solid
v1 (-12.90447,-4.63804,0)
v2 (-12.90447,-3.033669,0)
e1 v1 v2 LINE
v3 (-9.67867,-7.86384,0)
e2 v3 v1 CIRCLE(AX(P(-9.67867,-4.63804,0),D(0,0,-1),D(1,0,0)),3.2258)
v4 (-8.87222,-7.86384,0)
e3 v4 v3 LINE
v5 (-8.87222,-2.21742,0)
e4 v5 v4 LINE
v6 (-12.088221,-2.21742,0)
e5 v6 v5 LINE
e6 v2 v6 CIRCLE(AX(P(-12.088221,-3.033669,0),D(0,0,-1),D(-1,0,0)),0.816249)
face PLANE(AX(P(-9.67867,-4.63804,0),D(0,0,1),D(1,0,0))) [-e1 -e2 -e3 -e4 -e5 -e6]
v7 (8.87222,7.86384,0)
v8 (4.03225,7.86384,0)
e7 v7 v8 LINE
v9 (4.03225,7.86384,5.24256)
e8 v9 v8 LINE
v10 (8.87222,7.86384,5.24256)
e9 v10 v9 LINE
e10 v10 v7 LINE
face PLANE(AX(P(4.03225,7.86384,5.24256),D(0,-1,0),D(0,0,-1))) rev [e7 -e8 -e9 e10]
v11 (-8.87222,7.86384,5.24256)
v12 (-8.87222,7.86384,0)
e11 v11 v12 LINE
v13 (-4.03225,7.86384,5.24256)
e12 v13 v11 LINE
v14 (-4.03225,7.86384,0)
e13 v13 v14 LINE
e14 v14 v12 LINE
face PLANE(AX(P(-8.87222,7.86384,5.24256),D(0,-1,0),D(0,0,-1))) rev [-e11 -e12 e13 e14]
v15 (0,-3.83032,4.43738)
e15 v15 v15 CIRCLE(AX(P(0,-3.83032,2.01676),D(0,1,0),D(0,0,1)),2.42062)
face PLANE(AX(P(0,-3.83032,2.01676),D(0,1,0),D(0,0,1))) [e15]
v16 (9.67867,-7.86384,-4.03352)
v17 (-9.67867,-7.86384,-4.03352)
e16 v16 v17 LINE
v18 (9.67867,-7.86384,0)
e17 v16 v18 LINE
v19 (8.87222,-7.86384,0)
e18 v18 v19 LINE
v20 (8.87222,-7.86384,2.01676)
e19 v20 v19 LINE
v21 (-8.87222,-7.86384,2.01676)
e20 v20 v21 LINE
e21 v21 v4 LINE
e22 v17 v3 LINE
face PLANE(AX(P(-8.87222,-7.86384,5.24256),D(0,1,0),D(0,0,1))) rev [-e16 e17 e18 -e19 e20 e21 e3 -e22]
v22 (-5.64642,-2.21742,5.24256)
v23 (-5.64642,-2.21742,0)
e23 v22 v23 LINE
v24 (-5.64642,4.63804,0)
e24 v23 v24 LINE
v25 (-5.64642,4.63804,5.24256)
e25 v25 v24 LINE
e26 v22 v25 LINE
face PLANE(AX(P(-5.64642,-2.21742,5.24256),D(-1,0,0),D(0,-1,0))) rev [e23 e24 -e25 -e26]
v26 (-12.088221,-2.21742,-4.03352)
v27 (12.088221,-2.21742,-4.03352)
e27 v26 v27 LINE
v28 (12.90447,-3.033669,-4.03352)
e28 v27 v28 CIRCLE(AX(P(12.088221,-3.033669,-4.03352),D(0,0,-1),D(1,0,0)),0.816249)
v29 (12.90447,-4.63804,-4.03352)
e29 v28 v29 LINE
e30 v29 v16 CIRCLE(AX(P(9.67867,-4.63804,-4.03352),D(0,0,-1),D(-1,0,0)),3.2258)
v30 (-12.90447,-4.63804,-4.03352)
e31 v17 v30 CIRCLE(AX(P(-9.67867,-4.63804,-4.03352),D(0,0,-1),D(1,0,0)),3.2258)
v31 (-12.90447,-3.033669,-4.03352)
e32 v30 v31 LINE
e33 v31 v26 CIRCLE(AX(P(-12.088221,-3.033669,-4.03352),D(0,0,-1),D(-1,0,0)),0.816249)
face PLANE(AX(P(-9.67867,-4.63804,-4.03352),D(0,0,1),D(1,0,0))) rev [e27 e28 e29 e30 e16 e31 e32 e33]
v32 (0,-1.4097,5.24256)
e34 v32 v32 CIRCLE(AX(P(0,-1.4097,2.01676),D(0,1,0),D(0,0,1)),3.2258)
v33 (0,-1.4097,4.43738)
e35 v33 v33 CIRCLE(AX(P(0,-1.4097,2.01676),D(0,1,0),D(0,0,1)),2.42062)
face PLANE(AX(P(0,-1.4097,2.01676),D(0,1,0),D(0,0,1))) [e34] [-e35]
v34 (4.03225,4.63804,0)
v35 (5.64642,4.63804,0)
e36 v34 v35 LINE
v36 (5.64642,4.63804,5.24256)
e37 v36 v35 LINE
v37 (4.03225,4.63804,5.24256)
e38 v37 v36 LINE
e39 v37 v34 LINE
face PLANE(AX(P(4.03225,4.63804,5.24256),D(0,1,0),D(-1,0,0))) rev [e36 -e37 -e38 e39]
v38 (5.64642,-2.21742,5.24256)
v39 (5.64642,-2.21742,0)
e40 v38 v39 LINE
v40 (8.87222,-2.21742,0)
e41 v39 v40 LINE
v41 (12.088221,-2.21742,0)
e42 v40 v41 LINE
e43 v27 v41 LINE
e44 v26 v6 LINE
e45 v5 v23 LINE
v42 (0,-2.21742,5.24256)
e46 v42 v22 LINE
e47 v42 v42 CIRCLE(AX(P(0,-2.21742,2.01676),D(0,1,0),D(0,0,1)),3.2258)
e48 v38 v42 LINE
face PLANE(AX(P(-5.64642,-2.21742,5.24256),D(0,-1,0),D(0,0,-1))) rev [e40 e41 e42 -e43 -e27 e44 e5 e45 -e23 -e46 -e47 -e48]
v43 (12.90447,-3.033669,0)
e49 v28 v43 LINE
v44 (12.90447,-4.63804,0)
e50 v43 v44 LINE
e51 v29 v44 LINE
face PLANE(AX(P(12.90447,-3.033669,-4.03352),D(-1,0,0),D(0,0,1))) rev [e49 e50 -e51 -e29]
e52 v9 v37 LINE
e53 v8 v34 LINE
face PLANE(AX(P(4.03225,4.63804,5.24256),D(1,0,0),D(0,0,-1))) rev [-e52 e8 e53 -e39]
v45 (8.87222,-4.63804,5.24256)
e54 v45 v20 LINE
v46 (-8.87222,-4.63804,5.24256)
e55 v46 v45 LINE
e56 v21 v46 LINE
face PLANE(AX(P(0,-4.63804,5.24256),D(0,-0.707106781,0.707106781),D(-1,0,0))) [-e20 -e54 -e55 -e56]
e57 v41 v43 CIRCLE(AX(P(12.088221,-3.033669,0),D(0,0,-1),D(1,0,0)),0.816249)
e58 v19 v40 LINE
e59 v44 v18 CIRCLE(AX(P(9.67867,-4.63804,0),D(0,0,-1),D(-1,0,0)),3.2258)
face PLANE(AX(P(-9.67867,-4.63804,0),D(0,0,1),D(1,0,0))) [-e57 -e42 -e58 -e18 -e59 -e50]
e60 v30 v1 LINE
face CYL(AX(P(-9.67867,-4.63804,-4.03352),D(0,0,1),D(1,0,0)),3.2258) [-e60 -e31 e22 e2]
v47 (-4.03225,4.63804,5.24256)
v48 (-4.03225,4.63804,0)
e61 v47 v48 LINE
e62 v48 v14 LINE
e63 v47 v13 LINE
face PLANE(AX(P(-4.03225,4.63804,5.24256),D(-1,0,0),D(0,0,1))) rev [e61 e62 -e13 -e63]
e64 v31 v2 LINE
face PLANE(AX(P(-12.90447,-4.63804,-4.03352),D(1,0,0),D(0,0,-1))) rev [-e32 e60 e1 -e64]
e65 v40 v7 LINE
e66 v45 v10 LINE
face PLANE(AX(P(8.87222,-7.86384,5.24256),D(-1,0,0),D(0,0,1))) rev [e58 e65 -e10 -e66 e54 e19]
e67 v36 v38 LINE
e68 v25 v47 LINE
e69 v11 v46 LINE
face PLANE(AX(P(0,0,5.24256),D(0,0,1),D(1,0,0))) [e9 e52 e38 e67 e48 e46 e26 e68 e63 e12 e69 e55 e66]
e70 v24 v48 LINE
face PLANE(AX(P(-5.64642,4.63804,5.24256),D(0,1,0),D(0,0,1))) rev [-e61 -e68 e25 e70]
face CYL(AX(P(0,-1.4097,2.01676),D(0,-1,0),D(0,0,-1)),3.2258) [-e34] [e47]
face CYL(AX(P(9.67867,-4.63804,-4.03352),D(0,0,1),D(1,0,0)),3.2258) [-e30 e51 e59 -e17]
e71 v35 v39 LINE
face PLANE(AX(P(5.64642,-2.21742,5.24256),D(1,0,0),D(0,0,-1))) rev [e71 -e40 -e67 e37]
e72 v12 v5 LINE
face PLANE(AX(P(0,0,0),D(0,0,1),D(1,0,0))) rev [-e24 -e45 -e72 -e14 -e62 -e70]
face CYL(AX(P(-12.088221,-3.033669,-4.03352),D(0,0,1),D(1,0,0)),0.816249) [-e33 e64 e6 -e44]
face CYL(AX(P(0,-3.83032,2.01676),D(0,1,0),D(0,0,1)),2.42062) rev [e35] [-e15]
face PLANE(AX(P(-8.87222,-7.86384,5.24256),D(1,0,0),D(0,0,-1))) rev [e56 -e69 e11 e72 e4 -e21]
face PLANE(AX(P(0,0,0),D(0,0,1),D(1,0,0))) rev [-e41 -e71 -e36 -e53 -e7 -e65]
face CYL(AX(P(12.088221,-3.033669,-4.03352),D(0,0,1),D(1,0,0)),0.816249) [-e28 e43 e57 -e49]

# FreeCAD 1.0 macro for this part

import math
import FreeCAD as App
import Part
import Sketcher
from FreeCAD import Vector
Q = App.Units.Quantity


def edges_at(feature, points):
    """Names of the edges that pass closest to the given points."""
    edges = feature.Shape.Edges
    near = lambda p: min(range(len(edges)), key=lambda i: edges[i].distToShape(Part.Vertex(*p))[0])
    return sorted({f"Edge{near(p) + 1}" for p in points})

doc = App.newDocument("Part")
body = doc.addObject("PartDesign::Body", "Body")

# Sketch on XY plane
sketch1 = doc.addObject("Sketcher::SketchObject", "Sketch")
body.addObject(sketch1)
sketch1.AttachmentSupport = (doc.XY_Plane, [""])
sketch1.MapMode = "FlatFace"
sketch1.addGeometry(Part.LineSegment(Vector(-8.87222, -7.86384, 0), Vector(8.87222, -7.86384, 0)), False)
sketch1.addGeometry(Part.LineSegment(Vector(8.87222, -7.86384, 0), Vector(8.87222, 7.86384, 0)), False)
sketch1.addGeometry(Part.LineSegment(Vector(8.87222, 7.86384, 0), Vector(4.03225, 7.86384, 0)), False)
sketch1.addGeometry(Part.LineSegment(Vector(4.03225, 7.86384, 0), Vector(4.03225, 4.63804, 0)), False)
sketch1.addGeometry(Part.LineSegment(Vector(4.03225, 4.63804, 0), Vector(5.64642, 4.63804, 0)), False)
sketch1.addGeometry(Part.LineSegment(Vector(5.64642, 4.63804, 0), Vector(5.64642, -2.21742, 0)), False)
sketch1.addGeometry(Part.LineSegment(Vector(5.64642, -2.21742, 0), Vector(-5.64642, -2.21742, 0)), False)
sketch1.addGeometry(Part.LineSegment(Vector(-5.64642, -2.21742, 0), Vector(-5.64642, 4.63804, 0)), False)
sketch1.addGeometry(Part.LineSegment(Vector(-5.64642, 4.63804, 0), Vector(-4.03225, 4.63804, 0)), False)
sketch1.addGeometry(Part.LineSegment(Vector(-4.03225, 4.63804, 0), Vector(-4.03225, 7.86384, 0)), False)
sketch1.addGeometry(Part.LineSegment(Vector(-4.03225, 7.86384, 0), Vector(-8.87222, 7.86384, 0)), False)
sketch1.addGeometry(Part.LineSegment(Vector(-8.87222, 7.86384, 0), Vector(-8.87222, -7.86384, 0)), False)
sketch1.addConstraint(Sketcher.Constraint("Coincident", 0, 2, 1, 1))
sketch1.addConstraint(Sketcher.Constraint("Coincident", 1, 2, 2, 1))
sketch1.addConstraint(Sketcher.Constraint("Coincident", 2, 2, 3, 1))
sketch1.addConstraint(Sketcher.Constraint("Coincident", 3, 2, 4, 1))
sketch1.addConstraint(Sketcher.Constraint("Coincident", 4, 2, 5, 1))
sketch1.addConstraint(Sketcher.Constraint("Coincident", 5, 2, 6, 1))
sketch1.addConstraint(Sketcher.Constraint("Coincident", 6, 2, 7, 1))
sketch1.addConstraint(Sketcher.Constraint("Coincident", 7, 2, 8, 1))
sketch1.addConstraint(Sketcher.Constraint("Coincident", 8, 2, 9, 1))
sketch1.addConstraint(Sketcher.Constraint("Coincident", 9, 2, 10, 1))
sketch1.addConstraint(Sketcher.Constraint("Coincident", 10, 2, 11, 1))
sketch1.addConstraint(Sketcher.Constraint("Coincident", 11, 2, 0, 1))
sketch1.addConstraint(Sketcher.Constraint("Horizontal", 0))
sketch1.addConstraint(Sketcher.Constraint("Vertical", 1))
sketch1.addConstraint(Sketcher.Constraint("Horizontal", 2))
sketch1.addConstraint(Sketcher.Constraint("Vertical", 3))
sketch1.addConstraint(Sketcher.Constraint("Horizontal", 4))
sketch1.addConstraint(Sketcher.Constraint("Vertical", 5))
sketch1.addConstraint(Sketcher.Constraint("Horizontal", 6))
sketch1.addConstraint(Sketcher.Constraint("Vertical", 7))
sketch1.addConstraint(Sketcher.Constraint("Horizontal", 8))
sketch1.addConstraint(Sketcher.Constraint("Vertical", 9))
sketch1.addConstraint(Sketcher.Constraint("Horizontal", 10))
sketch1.addConstraint(Sketcher.Constraint("Vertical", 11))
sketch1.addConstraint(Sketcher.Constraint("Symmetric", 0, 2, 10, 2, -1, 1))
sketch1.addConstraint(Sketcher.Constraint("Symmetric", 4, 2, 7, 2, -2))
sketch1.addConstraint(Sketcher.Constraint("Symmetric", 2, 2, 9, 2, -2))
sketch1.addConstraint(Sketcher.Constraint("DistanceY", 3, 2, 3, 1, Q("0.127 in")))
sketch1.addConstraint(Sketcher.Constraint("DistanceX", 0, 1, 0, 2, Q("0.6986 in")))
sketch1.addConstraint(Sketcher.Constraint("DistanceX", 6, 2, 6, 1, Q("0.4446 in")))
sketch1.addConstraint(Sketcher.Constraint("DistanceY", 1, 1, 1, 2, Q("0.6192 in")))
sketch1.addConstraint(Sketcher.Constraint("DistanceY", 5, 2, 5, 1, Q("0.2699 in")))
sketch1.addConstraint(Sketcher.Constraint("DistanceX", 8, 2, 3, 2, Q("0.3175 in")))
pad1 = doc.addObject("PartDesign::Pad", "Pad")
body.addObject(pad1)
pad1.Profile = sketch1
pad1.Length = Q("0.2064 in")

# Sketch on XY plane
sketch2 = doc.addObject("Sketcher::SketchObject", "Sketch001")
body.addObject(sketch2)
sketch2.AttachmentSupport = (doc.XY_Plane, [""])
sketch2.MapMode = "FlatFace"
sketch2.addGeometry(Part.LineSegment(Vector(-12.088221, -2.21742, 0), Vector(12.088221, -2.21742, 0)), False)
sketch2.addGeometry(Part.ArcOfCircle(Part.Circle(Vector(12.088221, -3.033669, 0), Vector(0, 0, 1), 0.816249), math.radians(0), math.radians(90)), False)
sketch2.addGeometry(Part.LineSegment(Vector(12.90447, -3.033669, 0), Vector(12.90447, -4.63804, 0)), False)
sketch2.addGeometry(Part.ArcOfCircle(Part.Circle(Vector(9.67867, -4.63804, 0), Vector(0, 0, 1), 3.2258), math.radians(-90), math.radians(0)), False)
sketch2.addGeometry(Part.LineSegment(Vector(9.67867, -7.86384, 0), Vector(-9.67867, -7.86384, 0)), False)
sketch2.addGeometry(Part.ArcOfCircle(Part.Circle(Vector(-9.67867, -4.63804, 0), Vector(0, 0, 1), 3.2258), math.radians(180), math.radians(270)), False)
sketch2.addGeometry(Part.LineSegment(Vector(-12.90447, -4.63804, 0), Vector(-12.90447, -3.033669, 0)), False)
sketch2.addGeometry(Part.ArcOfCircle(Part.Circle(Vector(-12.088221, -3.033669, 0), Vector(0, 0, 1), 0.816249), math.radians(90), math.radians(180)), False)
sketch2.addConstraint(Sketcher.Constraint("Tangent", 0, 2, 1, 2))
sketch2.addConstraint(Sketcher.Constraint("Tangent", 1, 1, 2, 1))
sketch2.addConstraint(Sketcher.Constraint("Tangent", 2, 2, 3, 2))
sketch2.addConstraint(Sketcher.Constraint("Tangent", 3, 1, 4, 1))
sketch2.addConstraint(Sketcher.Constraint("Tangent", 4, 2, 5, 2))
sketch2.addConstraint(Sketcher.Constraint("Tangent", 5, 1, 6, 1))
sketch2.addConstraint(Sketcher.Constraint("Tangent", 6, 2, 7, 2))
sketch2.addConstraint(Sketcher.Constraint("Tangent", 7, 1, 0, 1))
sketch2.addConstraint(Sketcher.Constraint("Horizontal", 0))
sketch2.addConstraint(Sketcher.Constraint("Vertical", 2))
sketch2.addConstraint(Sketcher.Constraint("Horizontal", 4))
sketch2.addConstraint(Sketcher.Constraint("Vertical", 6))
sketch2.addConstraint(Sketcher.Constraint("Equal", 3, 5))
sketch2.addConstraint(Sketcher.Constraint("Equal", 1, 7))
sketch2.addConstraint(Sketcher.Constraint("Radius", 3, Q("0.127 in")))
sketch2.addConstraint(Sketcher.Constraint("DistanceX", 4, 2, 4, 1, Q("0.7621 in")))
sketch2.addConstraint(Sketcher.Constraint("Radius", 1, Q("0.816249 mm")))
sketch2.addConstraint(Sketcher.Constraint("DistanceY", 3, 3, -1, 1, Q("0.1826 in")))
sketch2.addConstraint(Sketcher.Constraint("DistanceY", 0, 2, -1, 1, Q("0.0873 in")))
sketch2.addConstraint(Sketcher.Constraint("DistanceX", -1, 1, 1, 3, Q("12.088221 mm")))
pad2 = doc.addObject("PartDesign::Pad", "Pad001")
body.addObject(pad2)
pad2.Profile = sketch2
pad2.Length = Q("0.1588 in")
pad2.Reversed = True
doc.recompute()

chamfer = doc.addObject("PartDesign::Chamfer", "Chamfer")
body.addObject(chamfer)
chamfer.Base = (pad2, edges_at(pad2, [(0, -7.864, 5.243)]))
chamfer.Size = Q("0.127 in")

# Sketch on XZ plane
sketch3 = doc.addObject("Sketcher::SketchObject", "Sketch002")
body.addObject(sketch3)
sketch3.AttachmentSupport = (doc.XZ_Plane, [""])
sketch3.MapMode = "FlatFace"
sketch3.AttachmentOffset = App.Placement(Vector(0, 0, 0.0873 * 25.4), App.Rotation())
sketch3.addGeometry(Part.Circle(Vector(0, 2.01676, 0), Vector(0, 0, 1), 3.2258), False)
sketch3.addConstraint(Sketcher.Constraint("PointOnObject", 0, 3, -2))
sketch3.addConstraint(Sketcher.Constraint("Diameter", 0, Q("0.254 in")))
sketch3.addConstraint(Sketcher.Constraint("DistanceY", -1, 1, 0, 3, Q("0.0794 in")))
pad3 = doc.addObject("PartDesign::Pad", "Pad002")
body.addObject(pad3)
pad3.Profile = sketch3
pad3.Length = Q("0.0318 in")
pad3.Reversed = True

# Sketch on XZ plane
sketch4 = doc.addObject("Sketcher::SketchObject", "Sketch003")
body.addObject(sketch4)
sketch4.AttachmentSupport = (doc.XZ_Plane, [""])
sketch4.MapMode = "FlatFace"
sketch4.AttachmentOffset = App.Placement(Vector(0, 0, 0.0555 * 25.4), App.Rotation())
sketch4.addGeometry(Part.Circle(Vector(0, 2.01676, 0), Vector(0, 0, 1), 2.42062), False)
sketch4.addConstraint(Sketcher.Constraint("PointOnObject", 0, 3, -2))
sketch4.addConstraint(Sketcher.Constraint("Diameter", 0, Q("0.1906 in")))
sketch4.addConstraint(Sketcher.Constraint("DistanceY", -1, 1, 0, 3, Q("0.0794 in")))
pocket1 = doc.addObject("PartDesign::Pocket", "Pocket")
body.addObject(pocket1)
pocket1.Profile = sketch4
pocket1.Length = Q("0.0953 in")
pocket1.Reversed = True

doc.recompute()
